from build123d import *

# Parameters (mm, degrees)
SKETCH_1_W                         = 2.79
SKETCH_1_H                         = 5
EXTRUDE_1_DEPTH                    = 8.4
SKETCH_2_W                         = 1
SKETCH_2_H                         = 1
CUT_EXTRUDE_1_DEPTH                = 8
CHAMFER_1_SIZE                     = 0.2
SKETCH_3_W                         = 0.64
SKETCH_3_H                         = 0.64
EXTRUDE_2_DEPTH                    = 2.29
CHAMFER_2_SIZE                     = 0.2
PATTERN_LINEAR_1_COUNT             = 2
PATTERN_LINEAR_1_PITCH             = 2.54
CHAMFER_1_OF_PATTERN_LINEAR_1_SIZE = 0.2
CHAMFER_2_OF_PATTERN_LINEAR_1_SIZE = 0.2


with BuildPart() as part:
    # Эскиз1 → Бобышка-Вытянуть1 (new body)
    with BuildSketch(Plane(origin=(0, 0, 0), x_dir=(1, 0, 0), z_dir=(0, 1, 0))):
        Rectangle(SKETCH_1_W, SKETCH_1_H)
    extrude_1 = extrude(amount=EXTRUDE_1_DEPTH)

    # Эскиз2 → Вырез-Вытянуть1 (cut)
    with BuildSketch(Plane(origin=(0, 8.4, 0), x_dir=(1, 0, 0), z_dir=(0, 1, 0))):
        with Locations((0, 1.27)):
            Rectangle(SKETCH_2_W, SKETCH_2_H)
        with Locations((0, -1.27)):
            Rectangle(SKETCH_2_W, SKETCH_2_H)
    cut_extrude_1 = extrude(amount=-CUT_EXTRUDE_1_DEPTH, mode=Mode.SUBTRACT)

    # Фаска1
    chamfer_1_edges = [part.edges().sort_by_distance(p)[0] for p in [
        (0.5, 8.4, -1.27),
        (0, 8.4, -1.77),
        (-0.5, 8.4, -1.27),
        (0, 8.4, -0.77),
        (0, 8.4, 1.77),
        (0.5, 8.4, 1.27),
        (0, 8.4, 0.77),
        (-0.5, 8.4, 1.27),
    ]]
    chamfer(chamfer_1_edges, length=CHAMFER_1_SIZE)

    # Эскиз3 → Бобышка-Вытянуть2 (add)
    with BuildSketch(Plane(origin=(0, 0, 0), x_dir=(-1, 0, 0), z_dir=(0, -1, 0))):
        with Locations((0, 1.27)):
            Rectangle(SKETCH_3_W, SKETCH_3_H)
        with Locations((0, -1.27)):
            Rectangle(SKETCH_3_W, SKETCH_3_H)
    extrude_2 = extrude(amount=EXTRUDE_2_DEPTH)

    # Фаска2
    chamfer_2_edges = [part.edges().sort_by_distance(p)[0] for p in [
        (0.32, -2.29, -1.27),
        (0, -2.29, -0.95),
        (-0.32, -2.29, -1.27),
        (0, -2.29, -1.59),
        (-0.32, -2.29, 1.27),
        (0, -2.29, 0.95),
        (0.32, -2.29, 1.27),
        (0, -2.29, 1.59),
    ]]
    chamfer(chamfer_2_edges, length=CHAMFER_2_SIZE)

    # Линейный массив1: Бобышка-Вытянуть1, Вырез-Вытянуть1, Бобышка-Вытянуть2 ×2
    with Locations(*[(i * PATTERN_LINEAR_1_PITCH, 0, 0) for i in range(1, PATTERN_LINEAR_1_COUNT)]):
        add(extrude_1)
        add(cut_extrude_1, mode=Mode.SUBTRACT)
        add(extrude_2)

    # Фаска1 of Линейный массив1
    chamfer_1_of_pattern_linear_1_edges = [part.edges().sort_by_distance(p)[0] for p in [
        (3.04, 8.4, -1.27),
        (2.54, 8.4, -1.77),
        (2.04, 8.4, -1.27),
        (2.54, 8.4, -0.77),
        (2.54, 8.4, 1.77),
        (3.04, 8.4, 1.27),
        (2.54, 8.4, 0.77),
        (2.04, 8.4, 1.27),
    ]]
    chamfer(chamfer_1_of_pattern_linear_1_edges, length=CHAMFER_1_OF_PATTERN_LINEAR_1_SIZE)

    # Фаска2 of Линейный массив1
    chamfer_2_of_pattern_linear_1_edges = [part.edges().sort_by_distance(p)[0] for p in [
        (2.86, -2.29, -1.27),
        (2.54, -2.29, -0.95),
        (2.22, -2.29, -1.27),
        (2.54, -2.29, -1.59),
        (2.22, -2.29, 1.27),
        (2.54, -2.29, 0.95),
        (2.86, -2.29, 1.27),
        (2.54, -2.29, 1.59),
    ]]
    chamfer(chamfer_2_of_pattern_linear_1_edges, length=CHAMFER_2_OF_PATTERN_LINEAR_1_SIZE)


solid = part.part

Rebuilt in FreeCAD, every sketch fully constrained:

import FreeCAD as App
import Part
import Sketcher
Q = App.Units.Quantity


def edges_at(feature, points):
    """Names of the edges that pass closest to the given points."""
    edges = feature.Shape.Edges
    near = lambda p: min(range(len(edges)), key=lambda i: edges[i].distToShape(Part.Vertex(*p))[0])
    return sorted({f"Edge{near(p) + 1}" for p in points})

doc = App.newDocument("Part")
body = doc.addObject("PartDesign::Body", "Body")

# Sketch on XZ plane
sketch1 = body.newObject("Sketcher::SketchObject", "Sketch")
sketch1.AttachmentSupport = (doc.getObject("XZ_Plane"), [""])
sketch1.MapMode = "FlatFace"
sketch1.addGeometry([
    Part.LineSegment(App.Vector(-1.395, -2.5, 0), App.Vector(-1.395, 2.5, 0)),
    Part.LineSegment(App.Vector(-1.395, 2.5, 0), App.Vector(1.395, 2.5, 0)),
    Part.LineSegment(App.Vector(1.395, 2.5, 0), App.Vector(1.395, -2.5, 0)),
    Part.LineSegment(App.Vector(1.395, -2.5, 0), App.Vector(-1.395, -2.5, 0)),
], False)
sketch1.addConstraint([
    Sketcher.Constraint("Coincident", 0, 2, 1, 1),
    Sketcher.Constraint("Coincident", 1, 2, 2, 1),
    Sketcher.Constraint("Coincident", 2, 2, 3, 1),
    Sketcher.Constraint("Coincident", 3, 2, 0, 1),
    Sketcher.Constraint("Vertical", 0),
    Sketcher.Constraint("Horizontal", 1),
    Sketcher.Constraint("Vertical", 2),
    Sketcher.Constraint("Horizontal", 3),
    Sketcher.Constraint("Symmetric", 0, 2, 2, 2, -1, 1),
    Sketcher.Constraint("DistanceY", 0, 1, 0, 2, Q("5 mm")),
    Sketcher.Constraint("DistanceX", 1, 1, 1, 2, Q("2.79 mm")),
])
pad1 = body.newObject("PartDesign::Pad", "Pad")
pad1.Profile = sketch1
pad1.Length = 8.4
pad1.Reversed = True

# Sketch on XZ plane
sketch2 = body.newObject("Sketcher::SketchObject", "Sketch001")
sketch2.AttachmentSupport = (doc.getObject("XZ_Plane"), [""])
sketch2.MapMode = "FlatFace"
sketch2.AttachmentOffset = App.Placement(App.Vector(0, 0, -8.4), App.Rotation())
sketch2.addGeometry([
    Part.LineSegment(App.Vector(-0.5, -1.77, 0), App.Vector(-0.5, -0.77, 0)),  # 0
    Part.LineSegment(App.Vector(-0.5, -0.77, 0), App.Vector(0.5, -0.77, 0)),  # 1
    Part.LineSegment(App.Vector(0.5, -0.77, 0), App.Vector(0.5, -1.77, 0)),  # 2
    Part.LineSegment(App.Vector(0.5, -1.77, 0), App.Vector(-0.5, -1.77, 0)),  # 3
    Part.LineSegment(App.Vector(-0.5, 0.77, 0), App.Vector(-0.5, 1.77, 0)),  # 4
    Part.LineSegment(App.Vector(-0.5, 1.77, 0), App.Vector(0.5, 1.77, 0)),  # 5
    Part.LineSegment(App.Vector(0.5, 1.77, 0), App.Vector(0.5, 0.77, 0)),  # 6
    Part.LineSegment(App.Vector(0.5, 0.77, 0), App.Vector(-0.5, 0.77, 0)),  # 7
], False)
sketch2.addConstraint([
    Sketcher.Constraint("Coincident", 0, 2, 1, 1),
    Sketcher.Constraint("Coincident", 1, 2, 2, 1),
    Sketcher.Constraint("Coincident", 2, 2, 3, 1),
    Sketcher.Constraint("Coincident", 3, 2, 0, 1),
    Sketcher.Constraint("Coincident", 4, 2, 5, 1),
    Sketcher.Constraint("Coincident", 5, 2, 6, 1),
    Sketcher.Constraint("Coincident", 6, 2, 7, 1),
    Sketcher.Constraint("Coincident", 7, 2, 4, 1),
    Sketcher.Constraint("Vertical", 0),
    Sketcher.Constraint("Horizontal", 1),
    Sketcher.Constraint("Vertical", 2),
    Sketcher.Constraint("Horizontal", 3),
    Sketcher.Constraint("Vertical", 4),
    Sketcher.Constraint("Horizontal", 5),
    Sketcher.Constraint("Vertical", 6),
    Sketcher.Constraint("Horizontal", 7),
    Sketcher.Constraint("Symmetric", 2, 2, 4, 2, -1, 1),
    Sketcher.Constraint("Symmetric", 0, 2, 6, 2, -1, 1),
    Sketcher.Constraint("Vertical", 3, 2, 4, 2),
    Sketcher.Constraint("Equal", 7, 0),
    Sketcher.Constraint("DistanceX", 1, 1, 1, 2, Q("1 mm")),
    Sketcher.Constraint("DistanceY", 0, 2, -1, 1, Q("0.77 mm")),
])
pocket1 = body.newObject("PartDesign::Pocket", "Pocket")
pocket1.Profile = sketch2
pocket1.Length = 8
pocket1.Reversed = True
doc.recompute()

chamfer = body.newObject("PartDesign::Chamfer", "Chamfer")
chamfer.Base = (pocket1, edges_at(pocket1, [
    (0.5, 8.4, -1.27),
    (0, 8.4, -1.77),
    (-0.5, 8.4, -1.27),
    (0, 8.4, -0.77),
    (0, 8.4, 1.77),
    (0.5, 8.4, 1.27),
    (0, 8.4, 0.77),
    (-0.5, 8.4, 1.27),
]))
chamfer.Size = 0.2

# Sketch on XZ plane
sketch3 = body.newObject("Sketcher::SketchObject", "Sketch002")
sketch3.AttachmentSupport = (doc.getObject("XZ_Plane"), [""])
sketch3.MapMode = "FlatFace"
sketch3.addGeometry([
    Part.LineSegment(App.Vector(0.32, -1.59, 0), App.Vector(0.32, -0.95, 0)),  # 0
    Part.LineSegment(App.Vector(0.32, -0.95, 0), App.Vector(-0.32, -0.95, 0)),  # 1
    Part.LineSegment(App.Vector(-0.32, -0.95, 0), App.Vector(-0.32, -1.59, 0)),  # 2
    Part.LineSegment(App.Vector(-0.32, -1.59, 0), App.Vector(0.32, -1.59, 0)),  # 3
    Part.LineSegment(App.Vector(0.32, 0.95, 0), App.Vector(0.32, 1.59, 0)),  # 4
    Part.LineSegment(App.Vector(0.32, 1.59, 0), App.Vector(-0.32, 1.59, 0)),  # 5
    Part.LineSegment(App.Vector(-0.32, 1.59, 0), App.Vector(-0.32, 0.95, 0)),  # 6
    Part.LineSegment(App.Vector(-0.32, 0.95, 0), App.Vector(0.32, 0.95, 0)),  # 7
], False)
sketch3.addConstraint([
    Sketcher.Constraint("Coincident", 0, 2, 1, 1),
    Sketcher.Constraint("Coincident", 1, 2, 2, 1),
    Sketcher.Constraint("Coincident", 2, 2, 3, 1),
    Sketcher.Constraint("Coincident", 3, 2, 0, 1),
    Sketcher.Constraint("Coincident", 4, 2, 5, 1),
    Sketcher.Constraint("Coincident", 5, 2, 6, 1),
    Sketcher.Constraint("Coincident", 6, 2, 7, 1),
    Sketcher.Constraint("Coincident", 7, 2, 4, 1),
    Sketcher.Constraint("Vertical", 0),
    Sketcher.Constraint("Horizontal", 1),
    Sketcher.Constraint("Vertical", 2),
    Sketcher.Constraint("Horizontal", 3),
    Sketcher.Constraint("Vertical", 4),
    Sketcher.Constraint("Horizontal", 5),
    Sketcher.Constraint("Vertical", 6),
    Sketcher.Constraint("Horizontal", 7),
    Sketcher.Constraint("Symmetric", 2, 2, 4, 2, -1, 1),
    Sketcher.Constraint("Symmetric", 0, 2, 6, 2, -1, 1),
    Sketcher.Constraint("Vertical", 3, 2, 4, 2),
    Sketcher.Constraint("Equal", 7, 0),
    Sketcher.Constraint("DistanceX", 1, 2, 1, 1, Q("0.64 mm")),
    Sketcher.Constraint("DistanceY", 1, 2, 6, 2, Q("1.9 mm")),
])
pad2 = body.newObject("PartDesign::Pad", "Pad001")
pad2.Profile = sketch3
pad2.Length = 2.29
doc.recompute()

chamfer2 = body.newObject("PartDesign::Chamfer", "Chamfer001")
chamfer2.Base = (pad2, edges_at(pad2, [
    (0.32, -2.29, -1.27),
    (0, -2.29, -0.95),
    (-0.32, -2.29, -1.27),
    (0, -2.29, -1.59),
    (-0.32, -2.29, 1.27),
    (0, -2.29, 0.95),
    (0.32, -2.29, 1.27),
    (0, -2.29, 1.59),
]))
chamfer2.Size = 0.2
doc.recompute()

linearpattern = body.newObject("PartDesign::LinearPattern", "LinearPattern")
linearpattern.Originals = [pad1, pocket1, pad2]
linearpattern.Direction = (doc.getObject("X_Axis"), [""])
linearpattern.Mode = "offset"
linearpattern.Offset = 2.54
linearpattern.Occurrences = 2
body.Tip = linearpattern
doc.recompute()

chamfer3 = body.newObject("PartDesign::Chamfer", "Chamfer002")
chamfer3.Base = (linearpattern, edges_at(linearpattern, [
    (3.04, 8.4, -1.27),
    (2.54, 8.4, -1.77),
    (2.04, 8.4, -1.27),
    (2.54, 8.4, -0.77),
    (2.54, 8.4, 1.77),
    (3.04, 8.4, 1.27),
    (2.54, 8.4, 0.77),
    (2.04, 8.4, 1.27),
]))
chamfer3.Size = 0.2
doc.recompute()

chamfer4 = body.newObject("PartDesign::Chamfer", "Chamfer003")
chamfer4.Base = (chamfer3, edges_at(chamfer3, [
    (2.86, -2.29, -1.27),
    (2.54, -2.29, -0.95),
    (2.22, -2.29, -1.27),
    (2.54, -2.29, -1.59),
    (2.22, -2.29, 1.27),
    (2.54, -2.29, 0.95),
    (2.86, -2.29, 1.27),
    (2.54, -2.29, 1.59),
]))
chamfer4.Size = 0.2

doc.recompute()
